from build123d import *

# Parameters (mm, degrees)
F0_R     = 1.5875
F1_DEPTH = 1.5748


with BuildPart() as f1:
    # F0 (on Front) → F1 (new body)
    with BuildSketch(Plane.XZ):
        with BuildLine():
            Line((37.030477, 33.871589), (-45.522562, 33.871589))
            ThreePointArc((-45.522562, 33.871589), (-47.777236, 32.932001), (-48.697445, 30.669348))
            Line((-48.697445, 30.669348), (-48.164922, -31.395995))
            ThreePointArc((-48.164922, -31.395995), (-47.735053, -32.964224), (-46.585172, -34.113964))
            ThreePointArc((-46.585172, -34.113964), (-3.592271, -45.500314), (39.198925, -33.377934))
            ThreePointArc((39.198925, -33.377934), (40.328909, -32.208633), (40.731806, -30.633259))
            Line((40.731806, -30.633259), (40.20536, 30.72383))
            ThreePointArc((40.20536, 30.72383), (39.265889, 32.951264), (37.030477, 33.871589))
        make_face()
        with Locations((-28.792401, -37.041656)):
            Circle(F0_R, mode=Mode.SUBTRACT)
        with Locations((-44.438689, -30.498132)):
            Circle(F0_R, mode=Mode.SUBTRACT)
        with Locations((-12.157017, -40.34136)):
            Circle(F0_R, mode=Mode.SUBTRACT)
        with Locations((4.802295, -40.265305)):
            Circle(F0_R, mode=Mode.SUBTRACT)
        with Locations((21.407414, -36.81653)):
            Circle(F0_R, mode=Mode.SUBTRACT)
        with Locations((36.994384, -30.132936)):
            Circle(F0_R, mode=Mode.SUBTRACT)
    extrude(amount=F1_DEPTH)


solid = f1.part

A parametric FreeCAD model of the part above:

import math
import FreeCAD as App
import Part
import Sketcher

V = App.Vector
Q = App.Units.Quantity

doc = App.newDocument("Part")
body = doc.addObject("PartDesign::Body", "Body")

sketch1 = body.newObject("Sketcher::SketchObject", "Sketch")
sketch1.AttachmentSupport = (doc.getObject("XZ_Plane"), [""])
sketch1.MapMode = "FlatFace"
sketch1.addGeometry([
    Part.LineSegment(V(37, 33.9, 0), V(-45.5, 33.9, 0)),
    Part.ArcOfCircle(Part.Circle(V(-45.5, 30.7, 0), V(0, 0, 1), 3.2), math.radians(90), math.radians(180)),
    Part.LineSegment(V(-48.7, 30.7, 0), V(-48.2, -31.4, 0)),
    Part.ArcOfCircle(Part.Circle(V(-45, -31.4, 0), V(0, 0, 1), 3.2), math.radians(-180), math.radians(-120)),
    Part.ArcOfCircle(Part.Circle(V(-4.3, 38.6, 0), V(0, 0, 1), 84.1), math.radians(-120), math.radians(-59)),
    Part.ArcOfCircle(Part.Circle(V(37.6, -30.7, 0), V(0, 0, 1), 3.2), math.radians(-59), math.radians(0)),
    Part.LineSegment(V(40.7, -30.6, 0), V(40.2, 30.7, 0)),
    Part.ArcOfCircle(Part.Circle(V(37, 30.7, 0), V(0, 0, 1), 3.2), math.radians(0), math.radians(90)),
    Part.Circle(V(-12.2, -40.3, 0), V(0, 0, 1), 1.6),
    Part.Circle(V(-28.8, -37, 0), V(0, 0, 1), 1.6),
    Part.Circle(V(4.8, -40.3, 0), V(0, 0, 1), 1.6),
    Part.Circle(V(21.4, -36.8, 0), V(0, 0, 1), 1.6),
    Part.Circle(V(-44.4, -30.5, 0), V(0, 0, 1), 1.6),
    Part.Circle(V(37, -30.1, 0), V(0, 0, 1), 1.6),
], False)
sketch1.addConstraint([
    Sketcher.Constraint("Tangent", 0, 2, 1, 1),
    Sketcher.Constraint("Tangent", 1, 2, 2, 1),
    Sketcher.Constraint("Tangent", 2, 2, 3, 1),
    Sketcher.Constraint("Tangent", 3, 2, 4, 1),
    Sketcher.Constraint("Tangent", 4, 2, 5, 1),
    Sketcher.Constraint("Tangent", 5, 2, 6, 1),
    Sketcher.Constraint("Tangent", 6, 2, 7, 1),
    Sketcher.Constraint("Tangent", 7, 2, 0, 1),
    Sketcher.Constraint("Horizontal", 0),
    Sketcher.Constraint("Equal", 1, 3),
    Sketcher.Constraint("Equal", 3, 5),
    Sketcher.Constraint("Equal", 5, 7),
    Sketcher.Constraint("Equal", 8, 9),
    Sketcher.Constraint("Equal", 9, 10),
    Sketcher.Constraint("Equal", 10, 11),
    Sketcher.Constraint("Equal", 11, 12),
    Sketcher.Constraint("Equal", 12, 13),
    Sketcher.Constraint("Parallel", 2, 6),
    Sketcher.Constraint("Diameter", 8, Q("0.125 in")),
    Sketcher.Constraint("Radius", 1, Q("0.125 in")),
    Sketcher.Constraint("Radius", 4, Q("3.3124999 in")),
    Sketcher.Constraint("DistanceY", 1, 3, 4, 3, Q("0.3125 in")),
    Sketcher.Constraint("DistanceX", 0, 2, 0, 1, Q("82.553039 mm")),
    Sketcher.Constraint("DistanceY", 5, 3, -1, 1, Q("30.6605 mm")),
    Sketcher.Constraint("DistanceX", 9, 3, -1, 1, Q("28.792401 mm")),
    Sketcher.Constraint("DistanceY", 9, 3, 3, 3, Q("5.672901 mm")),
    Sketcher.Constraint("DistanceX", 8, 3, 13, 3, Q("49.151401 mm")),
    Sketcher.Constraint("DistanceX", 1, 2, 4, 3, Q("44.383299 mm")),
    Sketcher.Constraint("DistanceX", 1, 3, -1, 1, Q("45.522561 mm")),
    Sketcher.Constraint("DistanceX", 3, 3, -1, 1, Q("44.990039 mm")),
    Sketcher.Constraint("DistanceY", 8, 3, -1, 1, Q("40.34136 mm")),
    Sketcher.Constraint("DistanceY", 11, 3, -1, 1, Q("36.81653 mm")),
    Sketcher.Constraint("DistanceX", 12, 3, -1, 1, Q("44.438689 mm")),
    Sketcher.Constraint("DistanceY", 12, 3, -1, 1, Q("30.498132 mm")),
    Sketcher.Constraint("DistanceX", 8, 3, 5, 3, Q("49.713942 mm")),
    Sketcher.Constraint("DistanceY", 10, 3, 9, 3, Q("3.223649 mm")),
    Sketcher.Constraint("DistanceX", 10, 3, 5, 3, Q("32.75463 mm")),
    Sketcher.Constraint("DistanceX", 10, 3, 11, 3, Q("16.605119 mm")),
    Sketcher.Constraint("DistanceY", 10, 3, 13, 3, Q("10.132369 mm")),
])
pad1 = body.newObject("PartDesign::Pad", "Pad")
pad1.Profile = sketch1
pad1.Length = Q("0.062 in")

doc.recompute()
